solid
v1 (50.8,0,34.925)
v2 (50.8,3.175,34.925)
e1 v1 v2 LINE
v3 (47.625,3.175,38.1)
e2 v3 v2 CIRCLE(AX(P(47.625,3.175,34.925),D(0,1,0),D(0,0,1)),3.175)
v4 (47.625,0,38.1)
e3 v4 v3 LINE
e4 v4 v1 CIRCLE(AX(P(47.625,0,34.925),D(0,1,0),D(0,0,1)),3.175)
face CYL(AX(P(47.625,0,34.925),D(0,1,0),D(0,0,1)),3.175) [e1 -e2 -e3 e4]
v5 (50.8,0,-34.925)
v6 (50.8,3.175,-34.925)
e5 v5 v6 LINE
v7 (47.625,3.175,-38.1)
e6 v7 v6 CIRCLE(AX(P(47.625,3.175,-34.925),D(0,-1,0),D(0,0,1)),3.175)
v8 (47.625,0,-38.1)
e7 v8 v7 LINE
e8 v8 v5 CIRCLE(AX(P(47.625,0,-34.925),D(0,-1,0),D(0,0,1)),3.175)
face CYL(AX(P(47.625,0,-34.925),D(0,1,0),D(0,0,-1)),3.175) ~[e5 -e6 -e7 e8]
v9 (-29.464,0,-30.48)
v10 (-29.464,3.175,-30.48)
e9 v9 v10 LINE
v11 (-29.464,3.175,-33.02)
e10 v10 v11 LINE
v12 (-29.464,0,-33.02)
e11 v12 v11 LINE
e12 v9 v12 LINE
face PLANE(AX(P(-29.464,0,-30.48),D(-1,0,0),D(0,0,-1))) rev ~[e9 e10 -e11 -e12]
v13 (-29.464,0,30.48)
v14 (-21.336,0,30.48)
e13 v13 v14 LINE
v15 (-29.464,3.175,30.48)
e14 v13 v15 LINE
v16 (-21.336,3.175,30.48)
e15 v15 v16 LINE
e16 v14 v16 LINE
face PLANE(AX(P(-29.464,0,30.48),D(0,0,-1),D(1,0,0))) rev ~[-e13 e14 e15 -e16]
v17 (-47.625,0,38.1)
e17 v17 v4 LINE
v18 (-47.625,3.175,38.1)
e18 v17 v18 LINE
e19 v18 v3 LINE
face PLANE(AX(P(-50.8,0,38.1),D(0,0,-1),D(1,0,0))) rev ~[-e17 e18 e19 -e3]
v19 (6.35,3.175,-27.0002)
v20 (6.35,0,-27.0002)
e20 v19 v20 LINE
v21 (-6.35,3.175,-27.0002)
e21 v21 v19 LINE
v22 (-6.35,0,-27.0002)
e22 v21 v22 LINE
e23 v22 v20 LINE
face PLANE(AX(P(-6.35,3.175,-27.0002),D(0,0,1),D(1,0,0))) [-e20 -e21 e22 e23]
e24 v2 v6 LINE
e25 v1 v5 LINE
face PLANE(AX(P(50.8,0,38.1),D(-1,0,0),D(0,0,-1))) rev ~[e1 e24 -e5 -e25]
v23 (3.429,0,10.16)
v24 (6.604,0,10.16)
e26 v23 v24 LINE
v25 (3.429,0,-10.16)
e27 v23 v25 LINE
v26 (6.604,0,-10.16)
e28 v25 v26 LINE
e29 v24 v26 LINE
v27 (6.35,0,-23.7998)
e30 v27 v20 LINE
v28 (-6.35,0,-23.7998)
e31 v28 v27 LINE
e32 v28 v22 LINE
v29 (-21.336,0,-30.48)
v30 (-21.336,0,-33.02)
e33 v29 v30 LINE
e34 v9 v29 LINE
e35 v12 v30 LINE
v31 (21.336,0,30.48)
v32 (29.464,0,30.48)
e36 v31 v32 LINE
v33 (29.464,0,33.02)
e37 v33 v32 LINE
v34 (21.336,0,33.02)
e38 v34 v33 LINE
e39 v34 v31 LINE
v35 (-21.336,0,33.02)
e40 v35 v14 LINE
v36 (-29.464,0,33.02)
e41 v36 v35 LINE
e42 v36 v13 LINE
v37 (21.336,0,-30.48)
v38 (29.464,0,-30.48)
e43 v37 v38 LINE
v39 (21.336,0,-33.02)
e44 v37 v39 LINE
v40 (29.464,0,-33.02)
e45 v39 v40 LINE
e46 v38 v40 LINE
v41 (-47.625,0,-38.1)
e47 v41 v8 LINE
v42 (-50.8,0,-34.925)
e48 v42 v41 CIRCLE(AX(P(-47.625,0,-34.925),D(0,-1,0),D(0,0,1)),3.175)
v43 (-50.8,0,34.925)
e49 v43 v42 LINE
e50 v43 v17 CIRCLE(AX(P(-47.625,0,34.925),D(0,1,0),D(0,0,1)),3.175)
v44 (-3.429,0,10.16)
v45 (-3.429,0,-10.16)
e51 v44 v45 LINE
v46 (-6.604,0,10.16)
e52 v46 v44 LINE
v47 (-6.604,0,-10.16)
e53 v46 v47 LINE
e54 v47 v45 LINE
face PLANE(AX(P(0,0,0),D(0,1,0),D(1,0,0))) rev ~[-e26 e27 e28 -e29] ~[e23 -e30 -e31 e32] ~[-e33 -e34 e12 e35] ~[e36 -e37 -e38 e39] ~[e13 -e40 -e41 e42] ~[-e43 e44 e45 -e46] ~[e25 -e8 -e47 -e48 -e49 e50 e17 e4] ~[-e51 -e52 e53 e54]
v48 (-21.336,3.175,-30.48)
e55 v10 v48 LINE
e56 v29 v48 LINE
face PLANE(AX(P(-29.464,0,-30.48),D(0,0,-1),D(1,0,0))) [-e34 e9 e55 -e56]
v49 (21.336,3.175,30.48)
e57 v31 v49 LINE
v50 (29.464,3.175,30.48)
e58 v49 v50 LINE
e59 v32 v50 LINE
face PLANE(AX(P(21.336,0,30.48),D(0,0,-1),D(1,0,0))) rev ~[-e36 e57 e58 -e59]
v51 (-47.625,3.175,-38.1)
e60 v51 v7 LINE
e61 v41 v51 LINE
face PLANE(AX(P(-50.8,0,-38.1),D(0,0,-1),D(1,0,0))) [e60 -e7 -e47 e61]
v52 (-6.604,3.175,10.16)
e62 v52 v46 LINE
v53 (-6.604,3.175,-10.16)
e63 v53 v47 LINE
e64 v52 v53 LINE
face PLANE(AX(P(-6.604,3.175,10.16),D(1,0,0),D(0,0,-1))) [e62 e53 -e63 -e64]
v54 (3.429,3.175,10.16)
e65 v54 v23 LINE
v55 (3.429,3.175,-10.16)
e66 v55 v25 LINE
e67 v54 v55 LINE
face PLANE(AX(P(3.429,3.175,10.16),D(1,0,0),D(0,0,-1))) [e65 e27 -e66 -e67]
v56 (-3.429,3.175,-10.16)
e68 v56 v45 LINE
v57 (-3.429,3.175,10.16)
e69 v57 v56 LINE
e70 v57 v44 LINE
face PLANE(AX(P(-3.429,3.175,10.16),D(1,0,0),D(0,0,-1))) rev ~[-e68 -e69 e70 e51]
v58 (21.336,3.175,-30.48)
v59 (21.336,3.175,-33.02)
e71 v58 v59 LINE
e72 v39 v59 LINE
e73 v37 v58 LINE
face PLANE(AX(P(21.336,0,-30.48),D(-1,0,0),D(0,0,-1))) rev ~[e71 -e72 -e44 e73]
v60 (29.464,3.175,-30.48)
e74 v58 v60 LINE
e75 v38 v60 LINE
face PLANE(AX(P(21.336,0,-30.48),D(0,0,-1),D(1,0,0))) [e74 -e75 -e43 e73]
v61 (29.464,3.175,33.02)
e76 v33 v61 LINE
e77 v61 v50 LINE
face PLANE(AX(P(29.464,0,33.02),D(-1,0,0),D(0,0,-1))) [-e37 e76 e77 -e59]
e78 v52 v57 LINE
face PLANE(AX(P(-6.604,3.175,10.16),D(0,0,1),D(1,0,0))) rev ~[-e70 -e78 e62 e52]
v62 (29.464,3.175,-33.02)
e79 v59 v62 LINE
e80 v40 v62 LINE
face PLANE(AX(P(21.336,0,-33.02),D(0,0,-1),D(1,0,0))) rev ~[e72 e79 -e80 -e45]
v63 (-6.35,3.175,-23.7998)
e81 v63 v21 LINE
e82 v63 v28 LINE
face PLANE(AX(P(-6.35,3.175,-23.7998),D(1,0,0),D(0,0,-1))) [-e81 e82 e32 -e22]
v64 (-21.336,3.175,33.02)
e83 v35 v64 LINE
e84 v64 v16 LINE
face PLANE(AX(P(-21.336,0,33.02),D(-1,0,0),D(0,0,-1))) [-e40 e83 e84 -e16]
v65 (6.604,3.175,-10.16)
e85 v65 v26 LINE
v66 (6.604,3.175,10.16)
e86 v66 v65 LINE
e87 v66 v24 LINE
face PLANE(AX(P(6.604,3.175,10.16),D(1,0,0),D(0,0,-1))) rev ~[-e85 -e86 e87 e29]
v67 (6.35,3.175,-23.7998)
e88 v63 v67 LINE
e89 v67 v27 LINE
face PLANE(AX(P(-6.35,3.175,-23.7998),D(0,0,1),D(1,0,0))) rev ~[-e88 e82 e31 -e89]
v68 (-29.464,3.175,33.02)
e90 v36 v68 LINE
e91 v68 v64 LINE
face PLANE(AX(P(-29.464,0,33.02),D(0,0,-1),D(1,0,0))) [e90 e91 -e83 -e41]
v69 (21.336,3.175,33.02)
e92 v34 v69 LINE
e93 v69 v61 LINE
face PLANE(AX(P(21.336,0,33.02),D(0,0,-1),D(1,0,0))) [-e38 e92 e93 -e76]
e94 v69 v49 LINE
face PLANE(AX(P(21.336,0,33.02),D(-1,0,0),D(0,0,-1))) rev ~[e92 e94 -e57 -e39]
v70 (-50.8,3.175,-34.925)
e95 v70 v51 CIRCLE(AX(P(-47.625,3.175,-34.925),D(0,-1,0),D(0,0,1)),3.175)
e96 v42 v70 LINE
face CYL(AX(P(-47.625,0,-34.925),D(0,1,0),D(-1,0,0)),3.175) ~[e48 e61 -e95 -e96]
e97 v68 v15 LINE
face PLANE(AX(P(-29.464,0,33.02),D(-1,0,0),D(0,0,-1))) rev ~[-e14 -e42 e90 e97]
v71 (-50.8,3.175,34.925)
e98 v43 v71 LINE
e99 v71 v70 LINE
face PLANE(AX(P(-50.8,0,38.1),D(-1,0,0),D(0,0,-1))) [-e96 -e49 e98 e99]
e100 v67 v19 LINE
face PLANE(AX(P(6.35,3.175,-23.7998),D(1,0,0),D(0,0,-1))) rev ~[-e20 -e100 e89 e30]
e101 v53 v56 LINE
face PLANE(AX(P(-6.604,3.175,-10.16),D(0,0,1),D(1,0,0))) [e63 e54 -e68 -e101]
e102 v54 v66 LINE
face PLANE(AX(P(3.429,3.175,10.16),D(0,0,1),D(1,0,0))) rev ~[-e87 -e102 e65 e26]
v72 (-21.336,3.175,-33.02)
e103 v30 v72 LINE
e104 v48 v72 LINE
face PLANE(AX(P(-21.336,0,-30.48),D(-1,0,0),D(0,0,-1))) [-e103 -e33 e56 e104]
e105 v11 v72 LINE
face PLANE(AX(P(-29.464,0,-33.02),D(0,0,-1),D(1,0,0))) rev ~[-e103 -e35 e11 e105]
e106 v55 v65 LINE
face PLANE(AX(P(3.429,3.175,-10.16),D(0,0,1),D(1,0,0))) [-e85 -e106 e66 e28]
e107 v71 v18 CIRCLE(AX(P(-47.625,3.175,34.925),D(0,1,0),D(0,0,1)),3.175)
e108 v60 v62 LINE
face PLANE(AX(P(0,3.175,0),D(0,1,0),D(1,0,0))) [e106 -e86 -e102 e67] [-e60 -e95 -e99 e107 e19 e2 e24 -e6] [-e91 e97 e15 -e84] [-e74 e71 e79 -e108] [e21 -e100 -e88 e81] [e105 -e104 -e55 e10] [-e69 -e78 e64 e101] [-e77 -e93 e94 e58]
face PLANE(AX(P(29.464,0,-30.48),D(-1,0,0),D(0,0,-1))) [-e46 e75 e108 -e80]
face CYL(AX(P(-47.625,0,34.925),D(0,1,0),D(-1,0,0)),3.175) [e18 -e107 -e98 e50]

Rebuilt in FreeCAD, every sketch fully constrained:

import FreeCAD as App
import Part
import Sketcher

V = App.Vector
Q = App.Units.Quantity


def edges_at(feature, points):
    """Names of the edges that pass closest to the given points."""
    edges = feature.Shape.Edges
    near = lambda p: min(range(len(edges)), key=lambda i: edges[i].distToShape(Part.Vertex(*p))[0])
    return sorted({f"Edge{near(p) + 1}" for p in points})


def add_polygon(sketch, points):
    """Adds a closed chain of lines whose ends are joined by coincident constraints."""
    first, n = sketch.GeometryCount, len(points)
    for a, b in zip(points, points[1:] + points[:1]):
        sketch.addGeometry(Part.LineSegment(App.Vector(*a, 0), App.Vector(*b, 0)), False)
    for i in range(n):
        sketch.addConstraint(Sketcher.Constraint("Coincident", first + i, 2, first + (i + 1) % n, 1))

doc = App.newDocument("Part")
params = doc.addObject("Spreadsheet::Sheet", "Params")
for row, (alias, value) in enumerate([
    ("sketch1_width", "4 in"),
    ("sketch1_height", "3 in"),
    ("sketch1_height2", "0.1 in"),
    ("sketch1_width2", "0.32 in"),
    ("pad1_length", "0.125 in"),
    ("fillet_radius", "0.125 in"),
    ("sketch2_width", "0.5 in"),
    ("sketch2_height", "0.8 in"),
    ("sketch2_width2", "0.125 in"),
    ("sketch2_height2", "0.126 in"),
    ("pocket1_length", "0.125 in"),
], start=1):
    params.set(f"A{row}", alias)
    params.set(f"B{row}", "=" + value)
    params.setAlias(f"B{row}", alias)

body = doc.addObject("PartDesign::Body", "Body")

# Sketch on XZ plane
sketch1 = body.newObject("Sketcher::SketchObject", "Sketch")
sketch1.AttachmentSupport = (doc.getObject("XZ_Plane"), [""])
sketch1.MapMode = "FlatFace"
add_polygon(sketch1, [(-50.8, -38.1), (-50.8, 38.1), (50.8, 38.1), (50.8, -38.1)])  # lines 0-3
add_polygon(sketch1, [(-21.336, 33.02), (-29.464, 33.02), (-29.464, 30.48), (-21.336, 30.48)])  # lines 4-7
add_polygon(sketch1, [(29.464, 33.02), (21.336, 33.02), (21.336, 30.48), (29.464, 30.48)])  # lines 8-11
add_polygon(sketch1, [(-21.336, -30.48), (-29.464, -30.48), (-29.464, -33.02), (-21.336, -33.02)])  # lines 12-15
add_polygon(sketch1, [(29.464, -30.48), (21.336, -30.48), (21.336, -33.02), (29.464, -33.02)])  # lines 16-19
sketch1.addConstraint([
    Sketcher.Constraint("Vertical", 0),
    Sketcher.Constraint("Horizontal", 1),
    Sketcher.Constraint("Vertical", 2),
    Sketcher.Constraint("Horizontal", 3),
    Sketcher.Constraint("Horizontal", 4),
    Sketcher.Constraint("Vertical", 5),
    Sketcher.Constraint("Horizontal", 6),
    Sketcher.Constraint("Vertical", 7),
    Sketcher.Constraint("Horizontal", 8),
    Sketcher.Constraint("Vertical", 9),
    Sketcher.Constraint("Horizontal", 10),
    Sketcher.Constraint("Vertical", 11),
    Sketcher.Constraint("Horizontal", 12),
    Sketcher.Constraint("Vertical", 13),
    Sketcher.Constraint("Horizontal", 14),
    Sketcher.Constraint("Vertical", 15),
    Sketcher.Constraint("Horizontal", 16),
    Sketcher.Constraint("Vertical", 17),
    Sketcher.Constraint("Horizontal", 18),
    Sketcher.Constraint("Vertical", 19),
    Sketcher.Constraint("Symmetric", 0, 2, 2, 2, -1, 1),
    Sketcher.Constraint("Symmetric", 10, 2, 12, 2, -1, 1),
    Sketcher.Constraint("Symmetric", 8, 2, 14, 2, -1, 1),
    Sketcher.Constraint("Symmetric", 6, 2, 16, 2, -1, 1),
    Sketcher.Constraint("Symmetric", 4, 2, 18, 2, -1, 1),
    Sketcher.Constraint("Symmetric", 7, 2, 8, 2, -2),
    Sketcher.Constraint("Symmetric", 5, 2, 10, 2, -2),
    Sketcher.Constraint("DistanceX", 1, 1, 1, 2, Q("4 in")),
    Sketcher.Constraint("DistanceY", 0, 1, 0, 2, Q("3 in")),
    Sketcher.Constraint("DistanceY", 5, 2, 5, 1, Q("0.1 in")),
    Sketcher.Constraint("DistanceX", 4, 2, 8, 2, Q("2 in")),
    Sketcher.Constraint("DistanceX", 4, 2, 4, 1, Q("0.32 in")),
    Sketcher.Constraint("DistanceY", -1, 1, 4, 2, Q("1.3 in")),
])
sketch1.setExpression("Constraints[47]", "Params.sketch1_width")
sketch1.setExpression("Constraints[48]", "Params.sketch1_height")
sketch1.setExpression("Constraints[49]", "Params.sketch1_height2")
sketch1.setExpression("Constraints[51]", "Params.sketch1_width2")
pad1 = body.newObject("PartDesign::Pad", "Pad")
pad1.Profile = sketch1
pad1.setExpression("Length", "Params.pad1_length")
pad1.Reversed = True
doc.recompute()

fillet = body.newObject("PartDesign::Fillet", "Fillet")
fillet.Base = (pad1, edges_at(pad1, [
    (50.8, 1.587, 38.1),
    (-50.8, 1.587, 38.1),
    (-50.8, 1.587, -38.1),
    (50.8, 1.587, -38.1),
]))
fillet.setExpression("Radius", "Params.fillet_radius")

# Sketch on XZ plane
sketch2 = body.newObject("Sketcher::SketchObject", "Sketch001")
sketch2.AttachmentSupport = (doc.getObject("XZ_Plane"), [""])
sketch2.MapMode = "FlatFace"
sketch2.AttachmentOffset = App.Placement(V(0, 0, -0.125 * 25.4), App.Rotation())
add_polygon(sketch2, [(-6.604, -10.16), (-6.604, 10.16), (-3.429, 10.16), (-3.429, -10.16)])  # lines 0-3
add_polygon(sketch2, [(3.429, -10.16), (3.429, 10.16), (6.604, 10.16), (6.604, -10.16)])  # lines 4-7
add_polygon(sketch2, [(-6.35, -27.0002), (-6.35, -23.7998), (6.35, -23.7998), (6.35, -27.0002)])  # lines 8-11
sketch2.addConstraint([
    Sketcher.Constraint("Vertical", 0),
    Sketcher.Constraint("Horizontal", 1),
    Sketcher.Constraint("Vertical", 2),
    Sketcher.Constraint("Horizontal", 3),
    Sketcher.Constraint("Vertical", 4),
    Sketcher.Constraint("Horizontal", 5),
    Sketcher.Constraint("Vertical", 6),
    Sketcher.Constraint("Horizontal", 7),
    Sketcher.Constraint("Vertical", 8),
    Sketcher.Constraint("Horizontal", 9),
    Sketcher.Constraint("Vertical", 10),
    Sketcher.Constraint("Horizontal", 11),
    Sketcher.Constraint("Symmetric", 2, 2, 4, 2, -1, 1),
    Sketcher.Constraint("Symmetric", 0, 2, 6, 2, -1, 1),
    Sketcher.Constraint("Horizontal", 1, 2, 4, 2),
    Sketcher.Constraint("DistanceX", 9, 1, 9, 2, Q("0.5 in")),
    Sketcher.Constraint("DistanceY", 0, 1, 0, 2, Q("0.8 in")),
    Sketcher.Constraint("DistanceX", 1, 1, 1, 2, Q("0.125 in")),
    Sketcher.Constraint("DistanceY", 8, 1, 8, 2, Q("0.126 in")),
    Sketcher.Constraint("DistanceX", 0, 2, -1, 1, Q("0.26 in")),
    Sketcher.Constraint("DistanceX", 8, 2, -1, 1, Q("0.25 in")),
    Sketcher.Constraint("DistanceY", 8, 2, -1, 1, Q("0.937 in")),
])
sketch2.setExpression("Constraints[27]", "Params.sketch2_width")
sketch2.setExpression("Constraints[28]", "Params.sketch2_height")
sketch2.setExpression("Constraints[29]", "Params.sketch2_width2")
sketch2.setExpression("Constraints[30]", "Params.sketch2_height2")
pocket1 = body.newObject("PartDesign::Pocket", "Pocket")
pocket1.Profile = sketch2
pocket1.setExpression("Length", "Params.pocket1_length")
pocket1.Reversed = True

doc.recompute()
